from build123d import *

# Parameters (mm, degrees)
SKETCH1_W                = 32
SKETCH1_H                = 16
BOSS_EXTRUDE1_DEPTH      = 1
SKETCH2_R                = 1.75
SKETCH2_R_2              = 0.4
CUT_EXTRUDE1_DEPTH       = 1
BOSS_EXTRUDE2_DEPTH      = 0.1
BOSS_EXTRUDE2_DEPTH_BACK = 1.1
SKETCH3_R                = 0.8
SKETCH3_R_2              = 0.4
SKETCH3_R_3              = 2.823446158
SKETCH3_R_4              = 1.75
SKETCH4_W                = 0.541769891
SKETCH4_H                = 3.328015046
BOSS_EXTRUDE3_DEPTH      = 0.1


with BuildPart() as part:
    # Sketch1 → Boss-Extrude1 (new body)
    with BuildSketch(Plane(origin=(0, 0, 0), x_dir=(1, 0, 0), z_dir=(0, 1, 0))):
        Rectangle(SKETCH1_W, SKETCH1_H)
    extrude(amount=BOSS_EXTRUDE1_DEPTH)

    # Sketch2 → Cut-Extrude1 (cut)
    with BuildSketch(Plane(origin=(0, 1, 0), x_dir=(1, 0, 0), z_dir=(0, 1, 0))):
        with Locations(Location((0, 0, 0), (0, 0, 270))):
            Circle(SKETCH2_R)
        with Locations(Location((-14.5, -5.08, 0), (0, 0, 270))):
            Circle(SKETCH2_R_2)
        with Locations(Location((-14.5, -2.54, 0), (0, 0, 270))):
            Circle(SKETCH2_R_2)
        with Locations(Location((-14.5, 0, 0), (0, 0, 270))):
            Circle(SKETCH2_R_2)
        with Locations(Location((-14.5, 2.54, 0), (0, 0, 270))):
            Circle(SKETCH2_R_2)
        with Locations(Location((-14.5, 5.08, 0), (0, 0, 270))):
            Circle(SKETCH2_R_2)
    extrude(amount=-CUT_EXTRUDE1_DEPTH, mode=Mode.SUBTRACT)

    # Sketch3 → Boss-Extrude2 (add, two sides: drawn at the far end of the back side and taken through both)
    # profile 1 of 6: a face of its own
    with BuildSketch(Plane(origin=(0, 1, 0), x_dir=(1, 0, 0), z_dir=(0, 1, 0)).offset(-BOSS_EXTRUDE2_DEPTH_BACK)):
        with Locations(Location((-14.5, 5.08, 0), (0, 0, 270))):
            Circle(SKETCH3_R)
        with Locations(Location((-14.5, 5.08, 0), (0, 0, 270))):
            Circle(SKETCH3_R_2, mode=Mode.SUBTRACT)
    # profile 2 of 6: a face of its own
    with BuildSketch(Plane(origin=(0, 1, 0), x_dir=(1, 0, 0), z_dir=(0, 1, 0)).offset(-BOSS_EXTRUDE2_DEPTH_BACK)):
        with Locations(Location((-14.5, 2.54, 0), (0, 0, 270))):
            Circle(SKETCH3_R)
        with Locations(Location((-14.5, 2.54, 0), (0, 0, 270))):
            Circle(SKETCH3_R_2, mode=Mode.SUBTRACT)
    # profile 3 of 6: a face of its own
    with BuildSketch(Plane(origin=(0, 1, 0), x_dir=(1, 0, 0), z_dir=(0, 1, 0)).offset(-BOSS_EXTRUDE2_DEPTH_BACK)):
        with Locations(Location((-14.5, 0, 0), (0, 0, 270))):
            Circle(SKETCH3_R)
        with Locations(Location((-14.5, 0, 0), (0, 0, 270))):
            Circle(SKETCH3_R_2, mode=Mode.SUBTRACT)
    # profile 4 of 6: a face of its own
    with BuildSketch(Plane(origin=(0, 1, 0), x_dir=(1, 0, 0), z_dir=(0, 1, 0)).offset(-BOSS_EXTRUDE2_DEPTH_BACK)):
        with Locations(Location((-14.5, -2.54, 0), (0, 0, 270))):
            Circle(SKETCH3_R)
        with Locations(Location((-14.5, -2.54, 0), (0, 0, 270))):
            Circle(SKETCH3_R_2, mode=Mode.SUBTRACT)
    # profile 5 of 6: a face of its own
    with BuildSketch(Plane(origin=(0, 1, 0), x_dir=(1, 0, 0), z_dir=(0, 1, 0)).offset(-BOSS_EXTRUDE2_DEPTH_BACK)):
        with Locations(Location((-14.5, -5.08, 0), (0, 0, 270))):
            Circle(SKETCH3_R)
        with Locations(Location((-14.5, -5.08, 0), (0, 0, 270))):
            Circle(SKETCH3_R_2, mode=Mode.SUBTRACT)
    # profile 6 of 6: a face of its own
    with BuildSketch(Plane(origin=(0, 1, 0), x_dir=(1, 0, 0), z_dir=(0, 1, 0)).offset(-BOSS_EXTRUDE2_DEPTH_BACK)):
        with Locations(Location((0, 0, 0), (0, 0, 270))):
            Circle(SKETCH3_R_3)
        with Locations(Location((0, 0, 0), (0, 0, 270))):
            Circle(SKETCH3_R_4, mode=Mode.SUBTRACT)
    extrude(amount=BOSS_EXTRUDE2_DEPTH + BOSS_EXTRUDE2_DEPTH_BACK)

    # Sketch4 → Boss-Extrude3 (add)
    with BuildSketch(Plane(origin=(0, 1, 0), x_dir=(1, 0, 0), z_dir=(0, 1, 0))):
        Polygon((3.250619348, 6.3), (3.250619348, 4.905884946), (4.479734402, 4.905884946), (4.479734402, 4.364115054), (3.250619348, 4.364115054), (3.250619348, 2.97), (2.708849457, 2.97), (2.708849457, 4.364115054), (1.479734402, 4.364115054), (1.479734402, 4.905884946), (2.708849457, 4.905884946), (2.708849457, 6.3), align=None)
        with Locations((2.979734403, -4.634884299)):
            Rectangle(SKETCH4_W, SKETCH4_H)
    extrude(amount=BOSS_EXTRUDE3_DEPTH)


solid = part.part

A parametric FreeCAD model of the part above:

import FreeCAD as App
import Part
import Sketcher

V = App.Vector
Q = App.Units.Quantity

doc = App.newDocument("Part")
body = doc.addObject("PartDesign::Body", "Body")

sketch1 = body.newObject("Sketcher::SketchObject", "Sketch")
sketch1.AttachmentSupport = (doc.getObject("XZ_Plane"), [""])
sketch1.MapMode = "FlatFace"
sketch1.addGeometry([
    Part.LineSegment(V(-16, -8, 0), V(-16, 8, 0)),
    Part.LineSegment(V(-16, 8, 0), V(16, 8, 0)),
    Part.LineSegment(V(16, 8, 0), V(16, -8, 0)),
    Part.LineSegment(V(16, -8, 0), V(-16, -8, 0)),
], False)
sketch1.addConstraint([
    Sketcher.Constraint("Coincident", 0, 2, 1, 1),
    Sketcher.Constraint("Coincident", 1, 2, 2, 1),
    Sketcher.Constraint("Coincident", 2, 2, 3, 1),
    Sketcher.Constraint("Coincident", 3, 2, 0, 1),
    Sketcher.Constraint("Vertical", 0),
    Sketcher.Constraint("Horizontal", 1),
    Sketcher.Constraint("Vertical", 2),
    Sketcher.Constraint("Horizontal", 3),
    Sketcher.Constraint("Symmetric", 0, 2, 2, 2, -1, 1),
    Sketcher.Constraint("DistanceX", 1, 1, 1, 2, Q("32 mm")),
    Sketcher.Constraint("DistanceY", 0, 1, 0, 2, Q("16 mm")),
])
pad1 = body.newObject("PartDesign::Pad", "Pad")
pad1.Profile = sketch1
pad1.Length = 1
pad1.Reversed = True

sketch2 = body.newObject("Sketcher::SketchObject", "Sketch001")
sketch2.AttachmentSupport = (doc.getObject("XZ_Plane"), [""])
sketch2.MapMode = "FlatFace"
sketch2.AttachmentOffset = App.Placement(V(0, 0, -1), App.Rotation())
sketch2.addGeometry([
    Part.Circle(V(0, 0, 0), V(0, 0, 1), 1.75),
    Part.Circle(V(-14.5, 5.08, 0), V(0, 0, 1), 0.4),
    Part.Circle(V(-14.5, 2.54, 0), V(0, 0, 1), 0.4),
    Part.Circle(V(-14.5, 0, 0), V(0, 0, 1), 0.4),
    Part.Circle(V(-14.5, -2.54, 0), V(0, 0, 1), 0.4),
    Part.Circle(V(-14.5, -5.08, 0), V(0, 0, 1), 0.4),
], False)
sketch2.addConstraint([
    Sketcher.Constraint("Coincident", 0, 3, -1, 1),
    Sketcher.Constraint("Equal", 1, 2),
    Sketcher.Constraint("Equal", 2, 3),
    Sketcher.Constraint("Equal", 3, 4),
    Sketcher.Constraint("Equal", 4, 5),
    Sketcher.Constraint("Symmetric", 2, 3, 4, 3, -1),
    Sketcher.Constraint("Symmetric", 1, 3, 5, 3, -1),
    Sketcher.Constraint("PointOnObject", 3, 3, -1),
    Sketcher.Constraint("Vertical", 1, 3, 2, 3),
    Sketcher.Constraint("Vertical", 2, 3, 3, 3),
    Sketcher.Constraint("Diameter", 0, Q("3.5 mm")),
    Sketcher.Constraint("Diameter", 1, Q("0.8 mm")),
    Sketcher.Constraint("DistanceX", 1, 3, -1, 1, Q("14.5 mm")),
    Sketcher.Constraint("DistanceY", -1, 1, 1, 3, Q("5.08 mm")),
    Sketcher.Constraint("DistanceY", -1, 1, 2, 3, Q("2.54 mm")),
])
pocket1 = body.newObject("PartDesign::Pocket", "Pocket")
pocket1.Profile = sketch2
pocket1.Length = 1
pocket1.Reversed = True

sketch3 = body.newObject("Sketcher::SketchObject", "Sketch002")
sketch3.AttachmentSupport = (doc.getObject("XZ_Plane"), [""])
sketch3.MapMode = "FlatFace"
sketch3.AttachmentOffset = App.Placement(V(0, 0, -1), App.Rotation())
sketch3.addGeometry([
    Part.Circle(V(-14.5, -5.08, 0), V(0, 0, 1), 0.8),
    Part.Circle(V(-14.5, -5.08, 0), V(0, 0, 1), 0.4),
    Part.Circle(V(-14.5, -2.54, 0), V(0, 0, 1), 0.8),
    Part.Circle(V(-14.5, -2.54, 0), V(0, 0, 1), 0.4),
    Part.Circle(V(-14.5, 0, 0), V(0, 0, 1), 0.8),
    Part.Circle(V(-14.5, 0, 0), V(0, 0, 1), 0.4),
    Part.Circle(V(-14.5, 2.54, 0), V(0, 0, 1), 0.8),
    Part.Circle(V(-14.5, 2.54, 0), V(0, 0, 1), 0.4),
    Part.Circle(V(-14.5, 5.08, 0), V(0, 0, 1), 0.8),
    Part.Circle(V(-14.5, 5.08, 0), V(0, 0, 1), 0.4),
    Part.Circle(V(0, 0, 0), V(0, 0, 1), 2.82),
    Part.Circle(V(0, 0, 0), V(0, 0, 1), 1.75),
], False)
sketch3.addConstraint([
    Sketcher.Constraint("Coincident", 10, 3, -1, 1),
    Sketcher.Constraint("Coincident", 11, 3, -1, 1),
    Sketcher.Constraint("Coincident", 1, 3, 0, 3),
    Sketcher.Constraint("Coincident", 3, 3, 2, 3),
    Sketcher.Constraint("Coincident", 5, 3, 4, 3),
    Sketcher.Constraint("Coincident", 7, 3, 6, 3),
    Sketcher.Constraint("Coincident", 9, 3, 8, 3),
    Sketcher.Constraint("Equal", 0, 2),
    Sketcher.Constraint("Equal", 1, 3),
    Sketcher.Constraint("Equal", 2, 4),
    Sketcher.Constraint("Equal", 3, 5),
    Sketcher.Constraint("Equal", 4, 6),
    Sketcher.Constraint("Equal", 5, 7),
    Sketcher.Constraint("Equal", 6, 8),
    Sketcher.Constraint("Equal", 7, 9),
    Sketcher.Constraint("Symmetric", 2, 3, 6, 3, -1),
    Sketcher.Constraint("Symmetric", 0, 3, 8, 3, -1),
    Sketcher.Constraint("PointOnObject", 4, 3, -1),
    Sketcher.Constraint("Vertical", 1, 3, 2, 3),
    Sketcher.Constraint("Vertical", 3, 3, 4, 3),
    Sketcher.Constraint("Diameter", 0, Q("1.6 mm")),
    Sketcher.Constraint("Diameter", 1, Q("0.8 mm")),
    Sketcher.Constraint("Diameter", 11, Q("3.5 mm")),
    Sketcher.Constraint("DistanceX", 0, 3, -1, 1, Q("14.5 mm")),
    Sketcher.Constraint("DistanceY", 0, 3, -1, 1, Q("5.08 mm")),
    Sketcher.Constraint("DistanceY", 2, 3, -1, 1, Q("2.54 mm")),
    Sketcher.Constraint("Diameter", 10, Q("5.646892 mm")),
])
pad2 = body.newObject("PartDesign::Pad", "Pad001")
pad2.Profile = sketch3
pad2.Type = "TwoLengths"
pad2.Length = 0.1
pad2.Length2 = 1.1
pad2.Reversed = True

sketch4 = body.newObject("Sketcher::SketchObject", "Sketch003")
sketch4.AttachmentSupport = (doc.getObject("XZ_Plane"), [""])
sketch4.MapMode = "FlatFace"
sketch4.AttachmentOffset = App.Placement(V(0, 0, -1), App.Rotation())
sketch4.addGeometry([
    Part.LineSegment(V(3.3, -4.9, 0), V(3.3, -6.3, 0)),
    Part.LineSegment(V(3.3, -6.3, 0), V(2.7, -6.3, 0)),
    Part.LineSegment(V(2.7, -6.3, 0), V(2.7, -4.9, 0)),
    Part.LineSegment(V(2.7, -4.9, 0), V(1.5, -4.9, 0)),
    Part.LineSegment(V(1.5, -4.9, 0), V(1.5, -4.4, 0)),
    Part.LineSegment(V(1.5, -4.4, 0), V(2.7, -4.4, 0)),
    Part.LineSegment(V(2.7, -4.4, 0), V(2.7, -3, 0)),
    Part.LineSegment(V(2.7, -3, 0), V(3.3, -3, 0)),
    Part.LineSegment(V(3.3, -3, 0), V(3.3, -4.4, 0)),
    Part.LineSegment(V(3.3, -4.4, 0), V(4.5, -4.4, 0)),
    Part.LineSegment(V(4.5, -4.4, 0), V(4.5, -4.9, 0)),
    Part.LineSegment(V(4.5, -4.9, 0), V(3.3, -4.9, 0)),
    Part.LineSegment(V(2.7, 3, 0), V(2.7, 6.3, 0)),
    Part.LineSegment(V(2.7, 6.3, 0), V(3.3, 6.3, 0)),
    Part.LineSegment(V(3.3, 6.3, 0), V(3.3, 3, 0)),
    Part.LineSegment(V(3.3, 3, 0), V(2.7, 3, 0)),
], False)
sketch4.addConstraint([
    Sketcher.Constraint("Coincident", 0, 2, 1, 1),
    Sketcher.Constraint("Coincident", 1, 2, 2, 1),
    Sketcher.Constraint("Coincident", 2, 2, 3, 1),
    Sketcher.Constraint("Coincident", 3, 2, 4, 1),
    Sketcher.Constraint("Coincident", 4, 2, 5, 1),
    Sketcher.Constraint("Coincident", 5, 2, 6, 1),
    Sketcher.Constraint("Coincident", 6, 2, 7, 1),
    Sketcher.Constraint("Coincident", 7, 2, 8, 1),
    Sketcher.Constraint("Coincident", 8, 2, 9, 1),
    Sketcher.Constraint("Coincident", 9, 2, 10, 1),
    Sketcher.Constraint("Coincident", 10, 2, 11, 1),
    Sketcher.Constraint("Coincident", 11, 2, 0, 1),
    Sketcher.Constraint("Coincident", 12, 2, 13, 1),
    Sketcher.Constraint("Coincident", 13, 2, 14, 1),
    Sketcher.Constraint("Coincident", 14, 2, 15, 1),
    Sketcher.Constraint("Coincident", 15, 2, 12, 1),
    Sketcher.Constraint("Vertical", 0),
    Sketcher.Constraint("Horizontal", 1),
    Sketcher.Constraint("Vertical", 2),
    Sketcher.Constraint("Horizontal", 3),
    Sketcher.Constraint("Vertical", 4),
    Sketcher.Constraint("Horizontal", 5),
    Sketcher.Constraint("Vertical", 6),
    Sketcher.Constraint("Horizontal", 7),
    Sketcher.Constraint("Vertical", 8),
    Sketcher.Constraint("Horizontal", 9),
    Sketcher.Constraint("Vertical", 10),
    Sketcher.Constraint("Horizontal", 11),
    Sketcher.Constraint("Vertical", 12),
    Sketcher.Constraint("Horizontal", 13),
    Sketcher.Constraint("Vertical", 14),
    Sketcher.Constraint("Horizontal", 15),
    Sketcher.Constraint("Horizontal", 5, 2, 8, 2),
    Sketcher.Constraint("Horizontal", 3, 2, 10, 2),
    Sketcher.Constraint("Vertical", 2, 2, 5, 2),
    Sketcher.Constraint("Vertical", 0, 2, 7, 2),
    Sketcher.Constraint("Vertical", 6, 2, 12, 2),
    Sketcher.Constraint("Vertical", 11, 2, 13, 2),
    Sketcher.Constraint("Equal", 5, 9),
    Sketcher.Constraint("Equal", 15, 4),
    Sketcher.Constraint("Equal", 2, 6),
    Sketcher.Constraint("DistanceY", 0, 2, -1, 1, Q("6.3 mm")),
    Sketcher.Constraint("DistanceY", 6, 2, -1, 1, Q("2.97 mm")),
    Sketcher.Constraint("DistanceX", 1, 2, 1, 1, Q("0.54177 mm")),
    Sketcher.Constraint("DistanceX", 3, 2, 3, 1, Q("1.229115 mm")),
    Sketcher.Constraint("DistanceY", 12, 1, 12, 2, Q("3.328015 mm")),
    Sketcher.Constraint("DistanceX", -1, 1, 0, 2, Q("3.250619 mm")),
    Sketcher.Constraint("DistanceY", -1, 1, 12, 2, Q("6.298892 mm")),
])
pad3 = body.newObject("PartDesign::Pad", "Pad002")
pad3.Profile = sketch4
pad3.Length = 0.1
pad3.Reversed = True

doc.recompute()
